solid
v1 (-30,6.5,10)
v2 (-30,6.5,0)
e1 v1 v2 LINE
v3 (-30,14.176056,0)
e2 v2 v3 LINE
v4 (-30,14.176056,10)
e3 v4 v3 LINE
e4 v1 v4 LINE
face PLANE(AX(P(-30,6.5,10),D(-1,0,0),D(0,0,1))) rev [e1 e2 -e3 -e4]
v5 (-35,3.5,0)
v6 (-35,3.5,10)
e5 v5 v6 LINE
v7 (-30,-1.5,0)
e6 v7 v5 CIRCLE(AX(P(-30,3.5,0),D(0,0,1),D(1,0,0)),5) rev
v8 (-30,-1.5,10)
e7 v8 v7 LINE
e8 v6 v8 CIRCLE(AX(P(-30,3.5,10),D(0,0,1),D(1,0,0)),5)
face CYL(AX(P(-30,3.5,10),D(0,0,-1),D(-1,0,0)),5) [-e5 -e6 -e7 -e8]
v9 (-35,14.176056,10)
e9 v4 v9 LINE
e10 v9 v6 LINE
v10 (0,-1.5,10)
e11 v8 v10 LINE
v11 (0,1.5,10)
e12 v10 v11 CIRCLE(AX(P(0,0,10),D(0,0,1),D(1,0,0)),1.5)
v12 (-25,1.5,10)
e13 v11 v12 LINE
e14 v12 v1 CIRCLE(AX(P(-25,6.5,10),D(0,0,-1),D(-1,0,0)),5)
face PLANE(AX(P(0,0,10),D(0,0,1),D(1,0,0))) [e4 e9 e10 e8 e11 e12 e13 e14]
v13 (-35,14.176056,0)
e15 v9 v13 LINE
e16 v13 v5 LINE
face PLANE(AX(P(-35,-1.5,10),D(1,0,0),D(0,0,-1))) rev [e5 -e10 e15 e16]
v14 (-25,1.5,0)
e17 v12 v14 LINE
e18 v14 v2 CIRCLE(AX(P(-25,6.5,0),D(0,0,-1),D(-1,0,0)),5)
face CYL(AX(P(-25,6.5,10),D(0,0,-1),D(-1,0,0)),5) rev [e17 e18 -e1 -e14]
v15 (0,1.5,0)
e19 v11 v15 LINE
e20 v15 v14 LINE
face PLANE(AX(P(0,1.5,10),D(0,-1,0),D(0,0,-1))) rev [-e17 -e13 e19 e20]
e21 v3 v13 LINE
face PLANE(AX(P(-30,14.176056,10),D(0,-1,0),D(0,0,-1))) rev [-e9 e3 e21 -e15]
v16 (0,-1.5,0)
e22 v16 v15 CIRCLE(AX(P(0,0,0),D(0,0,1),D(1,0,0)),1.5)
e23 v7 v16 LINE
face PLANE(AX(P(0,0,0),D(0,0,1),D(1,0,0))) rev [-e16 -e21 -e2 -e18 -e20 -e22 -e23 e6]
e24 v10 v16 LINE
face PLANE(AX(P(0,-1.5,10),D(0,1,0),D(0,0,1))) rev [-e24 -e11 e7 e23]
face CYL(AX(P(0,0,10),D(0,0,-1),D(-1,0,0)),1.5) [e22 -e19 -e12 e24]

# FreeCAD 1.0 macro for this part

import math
import FreeCAD as App
import Part
import Sketcher


def edges_at(feature, points):
    """Names of the edges that pass closest to the given points."""
    edges = feature.Shape.Edges
    near = lambda p: min(range(len(edges)), key=lambda i: edges[i].distToShape(Part.Vertex(*p))[0])
    return sorted({f"Edge{near(p) + 1}" for p in points})

doc = App.newDocument("Part")
body = doc.addObject("PartDesign::Body", "Body")

# Sketch on XY plane
sketch1 = body.newObject("Sketcher::SketchObject", "Sketch")
sketch1.AttachmentSupport = (doc.getObject("XY_Plane"), [""])
sketch1.MapMode = "FlatFace"
sketch1.addGeometry(Part.LineSegment(App.Vector(-35, -1.5, 0), App.Vector(0, -1.5, 0)), False)
sketch1.addGeometry(Part.ArcOfCircle(Part.Circle(App.Vector(0, 0, 0), App.Vector(0, 0, 1), 1.5), math.radians(-90), math.radians(90)), False)
sketch1.addGeometry(Part.LineSegment(App.Vector(0, 1.5, 0), App.Vector(-25, 1.5, 0)), False)
sketch1.addGeometry(Part.ArcOfCircle(Part.Circle(App.Vector(-25, 6.5, 0), App.Vector(0, 0, 1), 5), math.radians(180), math.radians(270)), False)
sketch1.addGeometry(Part.LineSegment(App.Vector(-30, 6.5, 0), App.Vector(-30, 14.176056, 0)), False)
sketch1.addGeometry(Part.LineSegment(App.Vector(-30, 14.176056, 0), App.Vector(-35, 14.176056, 0)), False)
sketch1.addGeometry(Part.LineSegment(App.Vector(-35, 14.176056, 0), App.Vector(-35, -1.5, 0)), False)
sketch1.addConstraint(Sketcher.Constraint("Tangent", 0, 2, 1, 1))
sketch1.addConstraint(Sketcher.Constraint("Tangent", 1, 2, 2, 1))
sketch1.addConstraint(Sketcher.Constraint("Tangent", 2, 2, 3, 2))
sketch1.addConstraint(Sketcher.Constraint("Tangent", 3, 1, 4, 1))
sketch1.addConstraint(Sketcher.Constraint("Coincident", 4, 2, 5, 1))
sketch1.addConstraint(Sketcher.Constraint("Coincident", 5, 2, 6, 1))
sketch1.addConstraint(Sketcher.Constraint("Coincident", 6, 2, 0, 1))
sketch1.addConstraint(Sketcher.Constraint("Horizontal", 0))
sketch1.addConstraint(Sketcher.Constraint("Horizontal", 2))
sketch1.addConstraint(Sketcher.Constraint("Vertical", 4))
sketch1.addConstraint(Sketcher.Constraint("Horizontal", 5))
sketch1.addConstraint(Sketcher.Constraint("Vertical", 6))
sketch1.addConstraint(Sketcher.Constraint("Coincident", 1, 3, -1, 1))
sketch1.addConstraint(Sketcher.Constraint("Radius", 3, 5.0))
sketch1.addConstraint(Sketcher.Constraint("Radius", 1, 1.5))
sketch1.addConstraint(Sketcher.Constraint("DistanceX", 0, 1, 0, 2, 35.0))
sketch1.addConstraint(Sketcher.Constraint("DistanceX", 2, 2, 2, 1, 25.0))
sketch1.addConstraint(Sketcher.Constraint("DistanceY", 4, 1, 4, 2, 7.676056))
pad1 = body.newObject("PartDesign::Pad", "Pad")
pad1.Profile = sketch1
pad1.Length = 10
doc.recompute()

fillet = body.newObject("PartDesign::Fillet", "Fillet")
fillet.Base = (pad1, edges_at(pad1, [(-35, -1.5, 5)]))
fillet.Radius = 5

doc.recompute()
